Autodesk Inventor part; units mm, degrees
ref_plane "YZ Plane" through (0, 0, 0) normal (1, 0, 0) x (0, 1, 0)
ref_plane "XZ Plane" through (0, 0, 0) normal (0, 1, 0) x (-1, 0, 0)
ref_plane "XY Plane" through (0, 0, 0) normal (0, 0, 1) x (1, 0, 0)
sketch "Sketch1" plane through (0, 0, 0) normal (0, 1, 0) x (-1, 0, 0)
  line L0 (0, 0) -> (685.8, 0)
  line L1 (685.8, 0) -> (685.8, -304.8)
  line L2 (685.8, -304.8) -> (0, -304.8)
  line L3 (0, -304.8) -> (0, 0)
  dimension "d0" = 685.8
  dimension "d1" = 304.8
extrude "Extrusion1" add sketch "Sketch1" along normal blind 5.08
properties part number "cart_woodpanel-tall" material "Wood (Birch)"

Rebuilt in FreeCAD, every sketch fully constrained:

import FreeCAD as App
import Part
import Sketcher
from FreeCAD import Vector
Q = App.Units.Quantity


def add_polygon(sketch, points):
    """Adds a closed chain of lines whose ends are joined by coincident constraints."""
    first, n = sketch.GeometryCount, len(points)
    for a, b in zip(points, points[1:] + points[:1]):
        sketch.addGeometry(Part.LineSegment(App.Vector(*a, 0), App.Vector(*b, 0)), False)
    for i in range(n):
        sketch.addConstraint(Sketcher.Constraint("Coincident", first + i, 2, first + (i + 1) % n, 1))

doc = App.newDocument("Part")
params = doc.addObject("Spreadsheet::Sheet", "Params")
for row, (alias, value) in enumerate([
    ("sketch1_width", "27 in"),
    ("sketch1_height", "12 in"),
    ("pad1_length", "0.2 in"),
], start=1):
    params.set(f"A{row}", alias)
    params.set(f"B{row}", "=" + value)
    params.setAlias(f"B{row}", alias)

body = doc.addObject("PartDesign::Body", "Body")

# Sketch on XZ plane
sketch1 = doc.addObject("Sketcher::SketchObject", "Sketch")
body.addObject(sketch1)
sketch1.AttachmentSupport = (doc.XZ_Plane, [""])
sketch1.MapMode = "FlatFace"
add_polygon(sketch1, [(-686, 0), (0, 0), (0, -305), (-686, -305)])  # lines 0-3
sketch1.addConstraint([
    Sketcher.Constraint("Horizontal", 0),
    Sketcher.Constraint("Vertical", 1),
    Sketcher.Constraint("Horizontal", 2),
    Sketcher.Constraint("Vertical", 3),
    Sketcher.Constraint("Coincident", 0, 2, -1, 1),
    Sketcher.Constraint("DistanceX", 0, 1, 0, 2, Q("27 in")),
    Sketcher.Constraint("DistanceY", 1, 2, 1, 1, Q("12 in")),
])
sketch1.setExpression("Constraints[9]", "Params.sketch1_width")
sketch1.setExpression("Constraints[10]", "Params.sketch1_height")
pad1 = doc.addObject("PartDesign::Pad", "Pad")
body.addObject(pad1)
pad1.Profile = sketch1
pad1.setExpression("Length", "Params.pad1_length")
pad1.Reversed = True

doc.recompute()
